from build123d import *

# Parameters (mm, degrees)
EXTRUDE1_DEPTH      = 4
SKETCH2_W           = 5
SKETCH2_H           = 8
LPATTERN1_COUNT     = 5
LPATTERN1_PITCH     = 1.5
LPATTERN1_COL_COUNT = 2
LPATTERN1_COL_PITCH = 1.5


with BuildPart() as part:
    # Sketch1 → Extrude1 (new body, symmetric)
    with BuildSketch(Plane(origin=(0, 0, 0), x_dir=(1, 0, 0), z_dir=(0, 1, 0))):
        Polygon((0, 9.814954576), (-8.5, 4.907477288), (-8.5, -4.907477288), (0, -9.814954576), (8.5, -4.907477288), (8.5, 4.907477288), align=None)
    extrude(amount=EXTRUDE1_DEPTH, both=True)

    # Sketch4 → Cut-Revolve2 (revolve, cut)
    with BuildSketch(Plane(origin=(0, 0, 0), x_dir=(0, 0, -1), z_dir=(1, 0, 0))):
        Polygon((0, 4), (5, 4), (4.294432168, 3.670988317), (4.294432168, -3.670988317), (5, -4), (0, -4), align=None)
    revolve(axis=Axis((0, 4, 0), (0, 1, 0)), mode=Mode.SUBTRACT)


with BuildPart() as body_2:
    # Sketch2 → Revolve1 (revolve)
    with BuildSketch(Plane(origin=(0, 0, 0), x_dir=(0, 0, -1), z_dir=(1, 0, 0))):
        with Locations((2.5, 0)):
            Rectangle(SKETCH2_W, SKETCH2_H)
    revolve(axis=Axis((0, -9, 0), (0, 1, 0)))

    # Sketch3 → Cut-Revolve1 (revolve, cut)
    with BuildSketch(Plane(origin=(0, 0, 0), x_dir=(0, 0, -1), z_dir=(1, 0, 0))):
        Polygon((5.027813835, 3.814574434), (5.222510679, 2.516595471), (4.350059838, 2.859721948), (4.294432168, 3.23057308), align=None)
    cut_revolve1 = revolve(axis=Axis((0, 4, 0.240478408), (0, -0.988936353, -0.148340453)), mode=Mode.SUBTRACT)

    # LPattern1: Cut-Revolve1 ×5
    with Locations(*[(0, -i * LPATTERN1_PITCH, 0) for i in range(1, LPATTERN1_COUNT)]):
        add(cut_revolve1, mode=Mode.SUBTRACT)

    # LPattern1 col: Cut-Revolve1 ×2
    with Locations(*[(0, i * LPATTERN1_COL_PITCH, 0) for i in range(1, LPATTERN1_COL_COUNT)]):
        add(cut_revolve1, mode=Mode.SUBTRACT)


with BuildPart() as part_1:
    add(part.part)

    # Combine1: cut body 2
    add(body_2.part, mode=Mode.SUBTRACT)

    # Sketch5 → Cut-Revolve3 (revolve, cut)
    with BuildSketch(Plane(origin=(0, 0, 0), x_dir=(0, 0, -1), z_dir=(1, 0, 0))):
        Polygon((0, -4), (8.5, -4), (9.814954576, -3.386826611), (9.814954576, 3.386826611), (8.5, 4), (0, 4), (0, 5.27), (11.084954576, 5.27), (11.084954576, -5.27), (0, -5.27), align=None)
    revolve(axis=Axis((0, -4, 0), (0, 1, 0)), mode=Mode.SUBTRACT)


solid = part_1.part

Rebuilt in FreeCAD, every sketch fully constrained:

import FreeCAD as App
import Part
import Sketcher
from FreeCAD import Vector
Q = App.Units.Quantity

doc = App.newDocument("Part")
body = doc.addObject("PartDesign::Body", "Body")

# Sketch on XZ plane
sketch1 = doc.addObject("Sketcher::SketchObject", "Sketch")
body.addObject(sketch1)
sketch1.AttachmentSupport = (doc.XZ_Plane, [""])
sketch1.MapMode = "FlatFace"
sketch1.addGeometry([
    Part.LineSegment(Vector(0, -10, 0), Vector(-8, -5, 0)),  # 0
    Part.LineSegment(Vector(-8, -5, 0), Vector(-8, 5, 0)),  # 1
    Part.LineSegment(Vector(-8, 5, 0), Vector(0, 10, 0)),  # 2
    Part.LineSegment(Vector(0, 10, 0), Vector(8, 5, 0)),  # 3
    Part.LineSegment(Vector(8, 5, 0), Vector(8, -5, 0)),  # 4
    Part.LineSegment(Vector(8, -5, 0), Vector(0, -10, 0)),  # 5
], False)
sketch1.addConstraint([
    Sketcher.Constraint("Coincident", 0, 2, 1, 1),
    Sketcher.Constraint("Coincident", 1, 2, 2, 1),
    Sketcher.Constraint("Coincident", 2, 2, 3, 1),
    Sketcher.Constraint("Coincident", 3, 2, 4, 1),
    Sketcher.Constraint("Coincident", 4, 2, 5, 1),
    Sketcher.Constraint("Coincident", 5, 2, 0, 1),
    Sketcher.Constraint("Vertical", 1),
    Sketcher.Constraint("Vertical", 4),
    Sketcher.Constraint("Symmetric", 0, 2, 3, 2, -1, 1),
    Sketcher.Constraint("Symmetric", 2, 2, 5, 2, -1, 1),
    Sketcher.Constraint("PointOnObject", 2, 2, -2),
    Sketcher.Constraint("Parallel", 2, 5),
    Sketcher.Constraint("Horizontal", 1, 2, 3, 2),
    Sketcher.Constraint("Angle", 0, Q("150 deg")),
    Sketcher.Constraint("DistanceX", 1, 2, 3, 2, 17.0),
    Sketcher.Constraint("DistanceY", 1, 1, 1, 2, 9.814955),
])
pad1 = doc.addObject("PartDesign::Pad", "Pad")
body.addObject(pad1)
pad1.Profile = sketch1
pad1.Length = 8
pad1.Midplane = True

# Sketch on YZ plane
sketch2 = doc.addObject("Sketcher::SketchObject", "Sketch001")
body.addObject(sketch2)
sketch2.AttachmentSupport = (doc.YZ_Plane, [""])
sketch2.MapMode = "FlatFace"
sketch2.addGeometry([
    Part.LineSegment(Vector(4, -5, 0), Vector(4, 0, 0)),  # 0
    Part.LineSegment(Vector(4, 0, 0), Vector(-4, 0, 0)),  # 1
    Part.LineSegment(Vector(-4, 0, 0), Vector(-4, -5, 0)),  # 2
    Part.LineSegment(Vector(-4, -5, 0), Vector(-3.7, -4.3, 0)),  # 3
    Part.LineSegment(Vector(-3.7, -4.3, 0), Vector(3.7, -4.3, 0)),  # 4
    Part.LineSegment(Vector(3.7, -4.3, 0), Vector(4, -5, 0)),  # 5
], False)
sketch2.addConstraint([
    Sketcher.Constraint("Coincident", 0, 2, 1, 1),
    Sketcher.Constraint("Coincident", 1, 2, 2, 1),
    Sketcher.Constraint("Coincident", 2, 2, 3, 1),
    Sketcher.Constraint("Coincident", 3, 2, 4, 1),
    Sketcher.Constraint("Coincident", 4, 2, 5, 1),
    Sketcher.Constraint("Coincident", 5, 2, 0, 1),
    Sketcher.Constraint("Vertical", 0),
    Sketcher.Constraint("Horizontal", 1),
    Sketcher.Constraint("Vertical", 2),
    Sketcher.Constraint("Horizontal", 4),
    Sketcher.Constraint("Symmetric", 0, 2, 1, 2, -1, 1),
    Sketcher.Constraint("Horizontal", 2, 2, 5, 2),
    Sketcher.Constraint("Equal", 3, 5),
    Sketcher.Constraint("DistanceX", 1, 2, 1, 1, 8.0),
    Sketcher.Constraint("DistanceY", 0, 1, 0, 2, 5.0),
    Sketcher.Constraint("Angle", 3, Q("65 deg")),
    Sketcher.Constraint("DistanceX", 4, 1, 4, 2, 7.341977),
])
groove = doc.addObject("PartDesign::Groove", "Groove")
body.addObject(groove)
groove.Profile = sketch2
groove.ReferenceAxis = (sketch2, ["H_Axis"])
groove.Angle = 360
body2 = doc.addObject("PartDesign::Body", "Body001")

# Sketch on YZ plane
sketch3 = doc.addObject("Sketcher::SketchObject", "Sketch002")
body2.addObject(sketch3)
sketch3.AttachmentSupport = (doc.getObject("YZ_Plane001"), [""])
sketch3.MapMode = "FlatFace"
sketch3.addGeometry([
    Part.LineSegment(Vector(4, 0, 0), Vector(-4, 0, 0)),
    Part.LineSegment(Vector(-4, 0, 0), Vector(-4, -5, 0)),
    Part.LineSegment(Vector(-4, -5, 0), Vector(4, -5, 0)),
    Part.LineSegment(Vector(4, -5, 0), Vector(4, 0, 0)),
], False)
sketch3.addConstraint([
    Sketcher.Constraint("Coincident", 0, 2, 1, 1),
    Sketcher.Constraint("Coincident", 1, 2, 2, 1),
    Sketcher.Constraint("Coincident", 2, 2, 3, 1),
    Sketcher.Constraint("Coincident", 3, 2, 0, 1),
    Sketcher.Constraint("Horizontal", 0),
    Sketcher.Constraint("Vertical", 1),
    Sketcher.Constraint("Horizontal", 2),
    Sketcher.Constraint("Vertical", 3),
    Sketcher.Constraint("Symmetric", 0, 2, 3, 2, -1, 1),
    Sketcher.Constraint("DistanceX", 0, 2, 0, 1, 8.0),
    Sketcher.Constraint("DistanceY", 1, 2, 1, 1, 5.0),
])
revolution = doc.addObject("PartDesign::Revolution", "Revolution")
body2.addObject(revolution)
revolution.Profile = sketch3
revolution.ReferenceAxis = (sketch3, ["H_Axis"])
revolution.Angle = 360

# Sketch on YZ plane
sketch4 = doc.addObject("Sketcher::SketchObject", "Sketch003")
body2.addObject(sketch4)
sketch4.AttachmentSupport = (doc.getObject("YZ_Plane001"), [""])
sketch4.MapMode = "FlatFace"
sketch4.addGeometry([
    Part.LineSegment(Vector(2.52, -5.22, 0), Vector(3.81, -5.03, 0)),
    Part.LineSegment(Vector(3.81, -5.03, 0), Vector(3.23, -4.29, 0)),
    Part.LineSegment(Vector(3.23, -4.29, 0), Vector(2.86, -4.35, 0)),
    Part.LineSegment(Vector(2.86, -4.35, 0), Vector(2.52, -5.22, 0)),
], False)
sketch4.addGeometry(Part.LineSegment(Vector(3.05, 0.1, 0), Vector(1.75, -0.1, 0)), True)  # axis
sketch4.addConstraint([
    Sketcher.Constraint("Coincident", 0, 2, 1, 1),
    Sketcher.Constraint("Coincident", 1, 2, 2, 1),
    Sketcher.Constraint("Coincident", 2, 2, 3, 1),
    Sketcher.Constraint("Coincident", 3, 2, 0, 1),
    Sketcher.Constraint("Parallel", 0, 2),
    Sketcher.Constraint("Parallel", 2, 4),
    Sketcher.Constraint("Equal", 1, 3),
    Sketcher.Constraint("Equal", 0, 4),
    Sketcher.Constraint("Distance", 2, 0.375),
    Sketcher.Constraint("DistanceX", 1, 2, 0, 2, 0.584001),
    Sketcher.Constraint("Distance", 0, 1.3125),
    Sketcher.Constraint("Distance", 1, 0.9375),
    Sketcher.Constraint("DistanceX", -1, 1, 4, 1, 3.0458),
    Sketcher.Constraint("DistanceX", 4, 2, 2, 2, 1.111901),
    Sketcher.Constraint("DistanceY", 2, 2, -1, 1, 4.35006),
    Sketcher.Constraint("DistanceY", -1, 1, 4, 1, 0.097348),
])
groove2 = doc.addObject("PartDesign::Groove", "Groove001")
body2.addObject(groove2)
groove2.Profile = sketch4
groove2.ReferenceAxis = (sketch4, ["Axis0"])
groove2.Angle = 360
doc.recompute()

linearpattern = doc.addObject("PartDesign::LinearPattern", "LinearPattern")
body2.addObject(linearpattern)
linearpattern.Originals = [groove2]
linearpattern.Direction = (doc.getObject("Y_Axis001"), [""])
linearpattern.Mode = "offset"
linearpattern.Offset = 1.5
linearpattern.Occurrences = 5
linearpattern.Reversed = True
body2.Tip = linearpattern
doc.recompute()

linearpattern2 = doc.addObject("PartDesign::LinearPattern", "LinearPattern001")
body2.addObject(linearpattern2)
linearpattern2.Originals = [groove2]
linearpattern2.Direction = (doc.getObject("Y_Axis001"), [""])
linearpattern2.Mode = "offset"
linearpattern2.Offset = 1.5
linearpattern2.Occurrences = 2
body2.Tip = linearpattern2
doc.recompute()

boolean = doc.addObject("PartDesign::Boolean", "Boolean")
body.addObject(boolean)
boolean.Type = "Cut"
boolean.addObjects([body2])

# Sketch on YZ plane
sketch5 = doc.addObject("Sketcher::SketchObject", "Sketch004")
body.addObject(sketch5)
sketch5.AttachmentSupport = (doc.YZ_Plane, [""])
sketch5.MapMode = "FlatFace"
sketch5.addGeometry([
    Part.LineSegment(Vector(-4, -8.5, 0), Vector(-4, 0, 0)),  # 0
    Part.LineSegment(Vector(-4, 0, 0), Vector(-5.3, 0, 0)),  # 1
    Part.LineSegment(Vector(-5.3, 0, 0), Vector(-5.3, -11.1, 0)),  # 2
    Part.LineSegment(Vector(-5.3, -11.1, 0), Vector(5.3, -11.1, 0)),  # 3
    Part.LineSegment(Vector(5.3, -11.1, 0), Vector(5.3, 0, 0)),  # 4
    Part.LineSegment(Vector(5.3, 0, 0), Vector(4, 0, 0)),  # 5
    Part.LineSegment(Vector(4, 0, 0), Vector(4, -8.5, 0)),  # 6
    Part.LineSegment(Vector(4, -8.5, 0), Vector(3.4, -9.8, 0)),  # 7
    Part.LineSegment(Vector(3.4, -9.8, 0), Vector(-3.4, -9.8, 0)),  # 8
    Part.LineSegment(Vector(-3.4, -9.8, 0), Vector(-4, -8.5, 0)),  # 9
], False)
sketch5.addConstraint([
    Sketcher.Constraint("Coincident", 0, 2, 1, 1),
    Sketcher.Constraint("Coincident", 1, 2, 2, 1),
    Sketcher.Constraint("Coincident", 2, 2, 3, 1),
    Sketcher.Constraint("Coincident", 3, 2, 4, 1),
    Sketcher.Constraint("Coincident", 4, 2, 5, 1),
    Sketcher.Constraint("Coincident", 5, 2, 6, 1),
    Sketcher.Constraint("Coincident", 6, 2, 7, 1),
    Sketcher.Constraint("Coincident", 7, 2, 8, 1),
    Sketcher.Constraint("Coincident", 8, 2, 9, 1),
    Sketcher.Constraint("Coincident", 9, 2, 0, 1),
    Sketcher.Constraint("Vertical", 0),
    Sketcher.Constraint("Horizontal", 1),
    Sketcher.Constraint("Vertical", 2),
    Sketcher.Constraint("Horizontal", 3),
    Sketcher.Constraint("Vertical", 4),
    Sketcher.Constraint("Horizontal", 5),
    Sketcher.Constraint("Vertical", 6),
    Sketcher.Constraint("Horizontal", 8),
    Sketcher.Constraint("Symmetric", 1, 2, 4, 2, -1, 1),
    Sketcher.Constraint("Symmetric", 0, 2, 5, 2, -2),
    Sketcher.Constraint("Horizontal", 6, 2, 9, 2),
    Sketcher.Constraint("Equal", 7, 9),
    Sketcher.Constraint("Angle", 7, Q("-115 deg")),
    Sketcher.Constraint("DistanceY", 0, 1, 0, 2, 8.5),
    Sketcher.Constraint("DistanceX", 0, 2, -1, 1, 4.0),
    Sketcher.Constraint("DistanceX", 1, 2, 1, 1, 1.27),
    Sketcher.Constraint("DistanceY", 3, 2, 7, 2, 1.27),
    Sketcher.Constraint("Distance", 7, 1.450892),
])
groove3 = doc.addObject("PartDesign::Groove", "Groove002")
body.addObject(groove3)
groove3.Profile = sketch5
groove3.ReferenceAxis = (sketch5, ["H_Axis"])
groove3.Angle = 360

doc.recompute()
